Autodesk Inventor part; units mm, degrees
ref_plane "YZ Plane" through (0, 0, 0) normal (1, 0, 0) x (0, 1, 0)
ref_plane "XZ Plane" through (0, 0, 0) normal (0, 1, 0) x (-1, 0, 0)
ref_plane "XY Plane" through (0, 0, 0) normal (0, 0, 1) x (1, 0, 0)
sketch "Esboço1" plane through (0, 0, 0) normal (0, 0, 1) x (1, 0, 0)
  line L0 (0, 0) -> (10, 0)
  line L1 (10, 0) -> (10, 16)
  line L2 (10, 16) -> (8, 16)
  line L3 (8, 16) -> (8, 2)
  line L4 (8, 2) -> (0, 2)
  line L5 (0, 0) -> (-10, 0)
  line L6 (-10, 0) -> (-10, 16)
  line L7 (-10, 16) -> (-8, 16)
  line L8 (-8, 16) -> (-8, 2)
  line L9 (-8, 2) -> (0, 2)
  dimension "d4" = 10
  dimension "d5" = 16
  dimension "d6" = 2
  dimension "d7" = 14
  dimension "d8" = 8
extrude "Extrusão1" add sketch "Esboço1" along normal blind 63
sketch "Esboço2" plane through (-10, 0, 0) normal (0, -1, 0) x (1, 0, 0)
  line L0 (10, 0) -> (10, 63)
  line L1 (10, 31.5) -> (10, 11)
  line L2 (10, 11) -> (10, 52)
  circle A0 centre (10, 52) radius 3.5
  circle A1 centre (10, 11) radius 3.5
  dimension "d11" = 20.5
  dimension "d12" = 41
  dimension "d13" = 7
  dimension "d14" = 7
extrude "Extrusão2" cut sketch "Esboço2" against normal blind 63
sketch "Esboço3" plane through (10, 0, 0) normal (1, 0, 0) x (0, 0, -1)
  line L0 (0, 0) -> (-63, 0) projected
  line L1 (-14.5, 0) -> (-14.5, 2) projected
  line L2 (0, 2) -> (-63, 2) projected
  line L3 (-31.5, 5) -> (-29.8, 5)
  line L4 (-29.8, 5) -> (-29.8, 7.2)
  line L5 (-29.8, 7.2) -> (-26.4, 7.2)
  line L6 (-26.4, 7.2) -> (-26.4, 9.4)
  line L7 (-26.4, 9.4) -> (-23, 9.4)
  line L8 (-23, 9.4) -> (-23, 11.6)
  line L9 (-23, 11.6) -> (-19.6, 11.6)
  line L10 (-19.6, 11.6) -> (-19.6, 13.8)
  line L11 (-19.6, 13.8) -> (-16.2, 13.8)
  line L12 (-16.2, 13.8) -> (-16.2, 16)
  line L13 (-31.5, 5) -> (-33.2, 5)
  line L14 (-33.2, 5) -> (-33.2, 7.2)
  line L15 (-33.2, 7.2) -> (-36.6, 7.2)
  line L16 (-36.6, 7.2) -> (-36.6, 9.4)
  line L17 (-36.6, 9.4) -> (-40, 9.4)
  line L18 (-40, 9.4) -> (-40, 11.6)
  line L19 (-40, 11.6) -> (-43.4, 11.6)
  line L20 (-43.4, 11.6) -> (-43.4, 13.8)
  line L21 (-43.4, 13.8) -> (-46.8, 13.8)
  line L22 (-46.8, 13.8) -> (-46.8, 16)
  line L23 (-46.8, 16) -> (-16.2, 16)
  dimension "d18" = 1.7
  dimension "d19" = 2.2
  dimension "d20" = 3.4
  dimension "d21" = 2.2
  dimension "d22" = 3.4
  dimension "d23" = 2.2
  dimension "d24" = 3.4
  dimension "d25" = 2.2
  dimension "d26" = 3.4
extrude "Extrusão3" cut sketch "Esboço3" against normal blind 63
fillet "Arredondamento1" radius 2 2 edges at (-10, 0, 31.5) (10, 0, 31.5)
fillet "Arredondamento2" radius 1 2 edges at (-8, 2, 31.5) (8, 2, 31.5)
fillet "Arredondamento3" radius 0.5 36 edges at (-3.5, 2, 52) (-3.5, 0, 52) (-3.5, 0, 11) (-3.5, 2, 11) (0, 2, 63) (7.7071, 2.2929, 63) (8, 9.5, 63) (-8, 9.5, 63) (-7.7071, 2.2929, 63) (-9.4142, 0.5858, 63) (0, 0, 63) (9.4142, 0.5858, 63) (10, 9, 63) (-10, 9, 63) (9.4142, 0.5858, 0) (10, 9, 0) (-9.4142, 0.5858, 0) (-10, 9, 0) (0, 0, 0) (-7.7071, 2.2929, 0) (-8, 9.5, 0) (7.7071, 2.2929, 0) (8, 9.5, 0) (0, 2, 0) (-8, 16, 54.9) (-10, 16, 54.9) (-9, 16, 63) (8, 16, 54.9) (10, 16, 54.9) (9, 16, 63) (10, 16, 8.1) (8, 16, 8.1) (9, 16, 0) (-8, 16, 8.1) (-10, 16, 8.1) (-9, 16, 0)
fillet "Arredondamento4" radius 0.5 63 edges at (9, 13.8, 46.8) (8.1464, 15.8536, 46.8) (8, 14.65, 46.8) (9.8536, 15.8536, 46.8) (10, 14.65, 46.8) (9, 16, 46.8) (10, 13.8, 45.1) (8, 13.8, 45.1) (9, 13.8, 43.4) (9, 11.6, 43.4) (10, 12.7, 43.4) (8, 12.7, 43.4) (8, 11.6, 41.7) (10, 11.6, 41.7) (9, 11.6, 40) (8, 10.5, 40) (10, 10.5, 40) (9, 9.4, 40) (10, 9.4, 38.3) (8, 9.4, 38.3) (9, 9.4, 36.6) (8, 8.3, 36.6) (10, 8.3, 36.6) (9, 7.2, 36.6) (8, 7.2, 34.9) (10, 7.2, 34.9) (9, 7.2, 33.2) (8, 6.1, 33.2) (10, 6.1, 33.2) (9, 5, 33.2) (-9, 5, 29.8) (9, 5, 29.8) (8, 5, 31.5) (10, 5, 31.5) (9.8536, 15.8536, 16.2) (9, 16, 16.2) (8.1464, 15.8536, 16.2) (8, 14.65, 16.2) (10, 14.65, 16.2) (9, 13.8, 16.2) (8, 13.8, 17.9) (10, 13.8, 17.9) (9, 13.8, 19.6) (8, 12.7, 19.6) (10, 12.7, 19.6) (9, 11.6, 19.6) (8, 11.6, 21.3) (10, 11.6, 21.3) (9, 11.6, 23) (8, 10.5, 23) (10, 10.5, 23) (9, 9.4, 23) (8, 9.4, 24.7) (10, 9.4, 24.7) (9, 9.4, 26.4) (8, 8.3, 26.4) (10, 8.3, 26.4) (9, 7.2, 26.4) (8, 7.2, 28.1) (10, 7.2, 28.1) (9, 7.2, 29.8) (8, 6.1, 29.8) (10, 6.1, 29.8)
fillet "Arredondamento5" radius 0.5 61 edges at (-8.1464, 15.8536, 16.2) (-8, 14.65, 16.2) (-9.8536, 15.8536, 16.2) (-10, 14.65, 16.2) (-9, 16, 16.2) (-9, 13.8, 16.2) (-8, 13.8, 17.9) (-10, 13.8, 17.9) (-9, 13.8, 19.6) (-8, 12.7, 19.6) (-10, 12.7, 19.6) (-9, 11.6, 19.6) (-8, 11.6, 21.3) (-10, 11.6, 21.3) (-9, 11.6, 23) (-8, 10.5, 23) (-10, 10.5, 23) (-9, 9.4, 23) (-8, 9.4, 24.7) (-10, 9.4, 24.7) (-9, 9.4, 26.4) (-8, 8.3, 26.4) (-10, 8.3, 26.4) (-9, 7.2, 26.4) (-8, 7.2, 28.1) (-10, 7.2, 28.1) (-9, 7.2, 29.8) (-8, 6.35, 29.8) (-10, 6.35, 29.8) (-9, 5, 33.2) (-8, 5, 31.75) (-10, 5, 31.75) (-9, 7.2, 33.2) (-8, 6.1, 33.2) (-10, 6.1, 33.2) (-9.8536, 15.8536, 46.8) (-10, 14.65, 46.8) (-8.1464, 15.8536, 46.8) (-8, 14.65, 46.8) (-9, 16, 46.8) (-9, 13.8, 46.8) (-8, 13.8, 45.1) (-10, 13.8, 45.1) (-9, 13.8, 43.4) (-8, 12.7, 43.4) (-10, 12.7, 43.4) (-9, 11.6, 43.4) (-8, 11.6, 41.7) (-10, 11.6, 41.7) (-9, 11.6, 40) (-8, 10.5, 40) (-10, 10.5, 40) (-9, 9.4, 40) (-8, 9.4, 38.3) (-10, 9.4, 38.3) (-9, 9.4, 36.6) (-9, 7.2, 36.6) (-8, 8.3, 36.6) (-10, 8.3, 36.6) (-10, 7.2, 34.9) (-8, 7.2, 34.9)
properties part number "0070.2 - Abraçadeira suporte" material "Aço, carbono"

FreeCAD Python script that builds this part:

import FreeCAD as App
import Part
import Sketcher

V = App.Vector
Q = App.Units.Quantity


def edges_at(feature, points):
    """Names of the edges that pass closest to the given points."""
    edges = feature.Shape.Edges
    near = lambda p: min(range(len(edges)), key=lambda i: edges[i].distToShape(Part.Vertex(*p))[0])
    return sorted({f"Edge{near(p) + 1}" for p in points})


def add_polygon(sketch, points):
    """Adds a closed chain of lines whose ends are joined by coincident constraints."""
    first, n = sketch.GeometryCount, len(points)
    for a, b in zip(points, points[1:] + points[:1]):
        sketch.addGeometry(Part.LineSegment(App.Vector(*a, 0), App.Vector(*b, 0)), False)
    for i in range(n):
        sketch.addConstraint(Sketcher.Constraint("Coincident", first + i, 2, first + (i + 1) % n, 1))

doc = App.newDocument("Part")
body = doc.addObject("PartDesign::Body", "Body")

# Sketch on XY plane
sketch1 = doc.addObject("Sketcher::SketchObject", "Sketch")
body.addObject(sketch1)
sketch1.AttachmentSupport = (doc.XY_Plane, [""])
sketch1.MapMode = "FlatFace"
add_polygon(sketch1, [(-10, 0), (10, 0), (10, 16), (8, 16), (8, 2), (-8, 2), (-8, 16), (-10, 16)])  # lines 0-7
sketch1.addConstraint([
    Sketcher.Constraint("Horizontal", 0),
    Sketcher.Constraint("Vertical", 1),
    Sketcher.Constraint("Horizontal", 2),
    Sketcher.Constraint("Vertical", 3),
    Sketcher.Constraint("Horizontal", 4),
    Sketcher.Constraint("Vertical", 5),
    Sketcher.Constraint("Horizontal", 6),
    Sketcher.Constraint("Vertical", 7),
    Sketcher.Constraint("Symmetric", 0, 2, 7, 2, -1, 1),
    Sketcher.Constraint("Symmetric", 2, 2, 5, 2, -2),
    Sketcher.Constraint("Equal", 4, 1),
    Sketcher.Constraint("DistanceX", 2, 2, 2, 1, Q("2 mm")),
    Sketcher.Constraint("DistanceX", 4, 2, 4, 1, Q("16 mm")),
    Sketcher.Constraint("DistanceY", 3, 2, 3, 1, Q("14 mm")),
])
pad1 = doc.addObject("PartDesign::Pad", "Pad")
body.addObject(pad1)
pad1.Profile = sketch1
pad1.Length = 63

# Sketch on XZ plane
sketch2 = doc.addObject("Sketcher::SketchObject", "Sketch001")
body.addObject(sketch2)
sketch2.AttachmentSupport = (doc.XZ_Plane, [""])
sketch2.MapMode = "FlatFace"
sketch2.addGeometry([
    Part.Circle(V(0, 11, 0), V(0, 0, 1), 3.5),
    Part.Circle(V(0, 52, 0), V(0, 0, 1), 3.5),
], False)
sketch2.addConstraint([
    Sketcher.Constraint("Equal", 0, 1),
    Sketcher.Constraint("PointOnObject", 0, 3, -2),
    Sketcher.Constraint("PointOnObject", 1, 3, -2),
    Sketcher.Constraint("Diameter", 0, Q("7 mm")),
    Sketcher.Constraint("DistanceY", 0, 3, 1, 3, Q("41 mm")),
    Sketcher.Constraint("DistanceY", -1, 1, 0, 3, Q("11 mm")),
])
pocket1 = doc.addObject("PartDesign::Pocket", "Pocket")
body.addObject(pocket1)
pocket1.Profile = sketch2
pocket1.Length = 63

# Sketch on YZ plane
sketch3 = doc.addObject("Sketcher::SketchObject", "Sketch002")
body.addObject(sketch3)
sketch3.AttachmentSupport = (doc.YZ_Plane, [""])
sketch3.MapMode = "FlatFace"
sketch3.AttachmentOffset = App.Placement(V(0, 0, 10), App.Rotation())
add_polygon(sketch3, [(5, 33.2), (5, 29.8), (7.2, 29.8), (7.2, 26.4), (9.4, 26.4), (9.4, 23), (11.6, 23), (11.6, 19.6), (13.8, 19.6), (13.8, 16.2), (16, 16.2), (16, 46.8), (13.8, 46.8), (13.8, 43.4), (11.6, 43.4), (11.6, 40), (9.4, 40), (9.4, 36.6), (7.2, 36.6), (7.2, 33.2)])  # lines 0-19
sketch3.addConstraint([
    Sketcher.Constraint("Vertical", 0),
    Sketcher.Constraint("Horizontal", 1),
    Sketcher.Constraint("Vertical", 2),
    Sketcher.Constraint("Horizontal", 3),
    Sketcher.Constraint("Vertical", 4),
    Sketcher.Constraint("Horizontal", 5),
    Sketcher.Constraint("Vertical", 6),
    Sketcher.Constraint("Horizontal", 7),
    Sketcher.Constraint("Vertical", 8),
    Sketcher.Constraint("Horizontal", 9),
    Sketcher.Constraint("Vertical", 10),
    Sketcher.Constraint("Horizontal", 11),
    Sketcher.Constraint("Vertical", 12),
    Sketcher.Constraint("Horizontal", 13),
    Sketcher.Constraint("Vertical", 14),
    Sketcher.Constraint("Horizontal", 15),
    Sketcher.Constraint("Vertical", 16),
    Sketcher.Constraint("Horizontal", 17),
    Sketcher.Constraint("Vertical", 18),
    Sketcher.Constraint("Horizontal", 19),
    Sketcher.Constraint("Vertical", 8, 2, 11, 2),
    Sketcher.Constraint("Vertical", 6, 2, 13, 2),
    Sketcher.Constraint("Vertical", 4, 2, 15, 2),
    Sketcher.Constraint("Vertical", 2, 2, 17, 2),
    Sketcher.Constraint("Equal", 1, 3),
    Sketcher.Constraint("Equal", 3, 5),
    Sketcher.Constraint("Equal", 5, 7),
    Sketcher.Constraint("Equal", 7, 9),
    Sketcher.Constraint("Equal", 0, 2),
    Sketcher.Constraint("Equal", 2, 4),
    Sketcher.Constraint("Equal", 4, 6),
    Sketcher.Constraint("Equal", 6, 8),
    Sketcher.Constraint("Equal", 8, 12),
    Sketcher.Constraint("Equal", 12, 14),
    Sketcher.Constraint("Equal", 14, 16),
    Sketcher.Constraint("Equal", 16, 18),
    Sketcher.Constraint("DistanceX", 1, 1, 1, 2, Q("2.2 mm")),
    Sketcher.Constraint("DistanceY", 0, 2, 0, 1, Q("3.4 mm")),
    Sketcher.Constraint("DistanceX", -1, 1, 0, 2, Q("5 mm")),
    Sketcher.Constraint("DistanceY", -1, 1, 4, 2, Q("23 mm")),
])
pocket2 = doc.addObject("PartDesign::Pocket", "Pocket001")
body.addObject(pocket2)
pocket2.Profile = sketch3
pocket2.Length = 63
doc.recompute()

fillet = doc.addObject("PartDesign::Fillet", "Fillet")
body.addObject(fillet)
fillet.Base = (pocket2, edges_at(pocket2, [(-10, 0, 31.5), (10, 0, 31.5)]))
fillet.Radius = 2
doc.recompute()

fillet2 = doc.addObject("PartDesign::Fillet", "Fillet001")
body.addObject(fillet2)
fillet2.Base = (fillet, edges_at(fillet, [(-8, 2, 31.5), (8, 2, 31.5)]))
fillet2.Radius = 1
doc.recompute()

fillet3 = doc.addObject("PartDesign::Fillet", "Fillet002")
body.addObject(fillet3)
fillet3.Base = (fillet2, edges_at(fillet2, [
    (-3.5, 2, 52),
    (-3.5, 0, 52),
    (-3.5, 0, 11),
    (-3.5, 2, 11),
    (0, 2, 63),
    (7.707, 2.293, 63),
    (8, 9.5, 63),
    (-8, 9.5, 63),
    (-7.707, 2.293, 63),
    (-9.414, 0.586, 63),
    (0, 0, 63),
    (9.414, 0.586, 63),
    (10, 9, 63),
    (-10, 9, 63),
    (9.414, 0.586, 0),
    (10, 9, 0),
    (-9.414, 0.586, 0),
    (-10, 9, 0),
    (0, 0, 0),
    (-7.707, 2.293, 0),
    (-8, 9.5, 0),
    (7.707, 2.293, 0),
    (8, 9.5, 0),
    (0, 2, 0),
    (-8, 16, 54.9),
    (-10, 16, 54.9),
    (-9, 16, 63),
    (8, 16, 54.9),
    (10, 16, 54.9),
    (9, 16, 63),
    (10, 16, 8.1),
    (8, 16, 8.1),
    (9, 16, 0),
    (-8, 16, 8.1),
    (-10, 16, 8.1),
    (-9, 16, 0),
]))
fillet3.Radius = 0.5
doc.recompute()

fillet4 = doc.addObject("PartDesign::Fillet", "Fillet003")
body.addObject(fillet4)
fillet4.Base = (fillet3, edges_at(fillet3, [
    (9, 13.8, 46.8),
    (8.146, 15.854, 46.8),
    (8, 14.65, 46.8),
    (9.854, 15.854, 46.8),
    (10, 14.65, 46.8),
    (9, 16, 46.8),
    (10, 13.8, 45.1),
    (8, 13.8, 45.1),
    (9, 13.8, 43.4),
    (9, 11.6, 43.4),
    (10, 12.7, 43.4),
    (8, 12.7, 43.4),
    (8, 11.6, 41.7),
    (10, 11.6, 41.7),
    (9, 11.6, 40),
    (8, 10.5, 40),
    (10, 10.5, 40),
    (9, 9.4, 40),
    (10, 9.4, 38.3),
    (8, 9.4, 38.3),
    (9, 9.4, 36.6),
    (8, 8.3, 36.6),
    (10, 8.3, 36.6),
    (9, 7.2, 36.6),
    (8, 7.2, 34.9),
    (10, 7.2, 34.9),
    (9, 7.2, 33.2),
    (8, 6.1, 33.2),
    (10, 6.1, 33.2),
    (9, 5, 33.2),
    (-9, 5, 29.8),
    (9, 5, 29.8),
    (8, 5, 31.5),
    (10, 5, 31.5),
    (9.854, 15.854, 16.2),
    (9, 16, 16.2),
    (8.146, 15.854, 16.2),
    (8, 14.65, 16.2),
    (10, 14.65, 16.2),
    (9, 13.8, 16.2),
    (8, 13.8, 17.9),
    (10, 13.8, 17.9),
    (9, 13.8, 19.6),
    (8, 12.7, 19.6),
    (10, 12.7, 19.6),
    (9, 11.6, 19.6),
    (8, 11.6, 21.3),
    (10, 11.6, 21.3),
    (9, 11.6, 23),
    (8, 10.5, 23),
    (10, 10.5, 23),
    (9, 9.4, 23),
    (8, 9.4, 24.7),
    (10, 9.4, 24.7),
    (9, 9.4, 26.4),
    (8, 8.3, 26.4),
    (10, 8.3, 26.4),
    (9, 7.2, 26.4),
    (8, 7.2, 28.1),
    (10, 7.2, 28.1),
    (9, 7.2, 29.8),
    (8, 6.1, 29.8),
    (10, 6.1, 29.8),
]))
fillet4.Radius = 0.5
doc.recompute()

fillet5 = doc.addObject("PartDesign::Fillet", "Fillet004")
body.addObject(fillet5)
fillet5.Base = (fillet4, edges_at(fillet4, [
    (-8.146, 15.854, 16.2),
    (-8, 14.65, 16.2),
    (-9.854, 15.854, 16.2),
    (-10, 14.65, 16.2),
    (-9, 16, 16.2),
    (-9, 13.8, 16.2),
    (-8, 13.8, 17.9),
    (-10, 13.8, 17.9),
    (-9, 13.8, 19.6),
    (-8, 12.7, 19.6),
    (-10, 12.7, 19.6),
    (-9, 11.6, 19.6),
    (-8, 11.6, 21.3),
    (-10, 11.6, 21.3),
    (-9, 11.6, 23),
    (-8, 10.5, 23),
    (-10, 10.5, 23),
    (-9, 9.4, 23),
    (-8, 9.4, 24.7),
    (-10, 9.4, 24.7),
    (-9, 9.4, 26.4),
    (-8, 8.3, 26.4),
    (-10, 8.3, 26.4),
    (-9, 7.2, 26.4),
    (-8, 7.2, 28.1),
    (-10, 7.2, 28.1),
    (-9, 7.2, 29.8),
    (-8, 6.35, 29.8),
    (-10, 6.35, 29.8),
    (-9, 5, 33.2),
    (-8, 5, 31.75),
    (-10, 5, 31.75),
    (-9, 7.2, 33.2),
    (-8, 6.1, 33.2),
    (-10, 6.1, 33.2),
    (-9.854, 15.854, 46.8),
    (-10, 14.65, 46.8),
    (-8.146, 15.854, 46.8),
    (-8, 14.65, 46.8),
    (-9, 16, 46.8),
    (-9, 13.8, 46.8),
    (-8, 13.8, 45.1),
    (-10, 13.8, 45.1),
    (-9, 13.8, 43.4),
    (-8, 12.7, 43.4),
    (-10, 12.7, 43.4),
    (-9, 11.6, 43.4),
    (-8, 11.6, 41.7),
    (-10, 11.6, 41.7),
    (-9, 11.6, 40),
    (-8, 10.5, 40),
    (-10, 10.5, 40),
    (-9, 9.4, 40),
    (-8, 9.4, 38.3),
    (-10, 9.4, 38.3),
    (-9, 9.4, 36.6),
    (-9, 7.2, 36.6),
    (-8, 8.3, 36.6),
    (-10, 8.3, 36.6),
    (-10, 7.2, 34.9),
    (-8, 7.2, 34.9),
]))
fillet5.Radius = 0.5

doc.recompute()
